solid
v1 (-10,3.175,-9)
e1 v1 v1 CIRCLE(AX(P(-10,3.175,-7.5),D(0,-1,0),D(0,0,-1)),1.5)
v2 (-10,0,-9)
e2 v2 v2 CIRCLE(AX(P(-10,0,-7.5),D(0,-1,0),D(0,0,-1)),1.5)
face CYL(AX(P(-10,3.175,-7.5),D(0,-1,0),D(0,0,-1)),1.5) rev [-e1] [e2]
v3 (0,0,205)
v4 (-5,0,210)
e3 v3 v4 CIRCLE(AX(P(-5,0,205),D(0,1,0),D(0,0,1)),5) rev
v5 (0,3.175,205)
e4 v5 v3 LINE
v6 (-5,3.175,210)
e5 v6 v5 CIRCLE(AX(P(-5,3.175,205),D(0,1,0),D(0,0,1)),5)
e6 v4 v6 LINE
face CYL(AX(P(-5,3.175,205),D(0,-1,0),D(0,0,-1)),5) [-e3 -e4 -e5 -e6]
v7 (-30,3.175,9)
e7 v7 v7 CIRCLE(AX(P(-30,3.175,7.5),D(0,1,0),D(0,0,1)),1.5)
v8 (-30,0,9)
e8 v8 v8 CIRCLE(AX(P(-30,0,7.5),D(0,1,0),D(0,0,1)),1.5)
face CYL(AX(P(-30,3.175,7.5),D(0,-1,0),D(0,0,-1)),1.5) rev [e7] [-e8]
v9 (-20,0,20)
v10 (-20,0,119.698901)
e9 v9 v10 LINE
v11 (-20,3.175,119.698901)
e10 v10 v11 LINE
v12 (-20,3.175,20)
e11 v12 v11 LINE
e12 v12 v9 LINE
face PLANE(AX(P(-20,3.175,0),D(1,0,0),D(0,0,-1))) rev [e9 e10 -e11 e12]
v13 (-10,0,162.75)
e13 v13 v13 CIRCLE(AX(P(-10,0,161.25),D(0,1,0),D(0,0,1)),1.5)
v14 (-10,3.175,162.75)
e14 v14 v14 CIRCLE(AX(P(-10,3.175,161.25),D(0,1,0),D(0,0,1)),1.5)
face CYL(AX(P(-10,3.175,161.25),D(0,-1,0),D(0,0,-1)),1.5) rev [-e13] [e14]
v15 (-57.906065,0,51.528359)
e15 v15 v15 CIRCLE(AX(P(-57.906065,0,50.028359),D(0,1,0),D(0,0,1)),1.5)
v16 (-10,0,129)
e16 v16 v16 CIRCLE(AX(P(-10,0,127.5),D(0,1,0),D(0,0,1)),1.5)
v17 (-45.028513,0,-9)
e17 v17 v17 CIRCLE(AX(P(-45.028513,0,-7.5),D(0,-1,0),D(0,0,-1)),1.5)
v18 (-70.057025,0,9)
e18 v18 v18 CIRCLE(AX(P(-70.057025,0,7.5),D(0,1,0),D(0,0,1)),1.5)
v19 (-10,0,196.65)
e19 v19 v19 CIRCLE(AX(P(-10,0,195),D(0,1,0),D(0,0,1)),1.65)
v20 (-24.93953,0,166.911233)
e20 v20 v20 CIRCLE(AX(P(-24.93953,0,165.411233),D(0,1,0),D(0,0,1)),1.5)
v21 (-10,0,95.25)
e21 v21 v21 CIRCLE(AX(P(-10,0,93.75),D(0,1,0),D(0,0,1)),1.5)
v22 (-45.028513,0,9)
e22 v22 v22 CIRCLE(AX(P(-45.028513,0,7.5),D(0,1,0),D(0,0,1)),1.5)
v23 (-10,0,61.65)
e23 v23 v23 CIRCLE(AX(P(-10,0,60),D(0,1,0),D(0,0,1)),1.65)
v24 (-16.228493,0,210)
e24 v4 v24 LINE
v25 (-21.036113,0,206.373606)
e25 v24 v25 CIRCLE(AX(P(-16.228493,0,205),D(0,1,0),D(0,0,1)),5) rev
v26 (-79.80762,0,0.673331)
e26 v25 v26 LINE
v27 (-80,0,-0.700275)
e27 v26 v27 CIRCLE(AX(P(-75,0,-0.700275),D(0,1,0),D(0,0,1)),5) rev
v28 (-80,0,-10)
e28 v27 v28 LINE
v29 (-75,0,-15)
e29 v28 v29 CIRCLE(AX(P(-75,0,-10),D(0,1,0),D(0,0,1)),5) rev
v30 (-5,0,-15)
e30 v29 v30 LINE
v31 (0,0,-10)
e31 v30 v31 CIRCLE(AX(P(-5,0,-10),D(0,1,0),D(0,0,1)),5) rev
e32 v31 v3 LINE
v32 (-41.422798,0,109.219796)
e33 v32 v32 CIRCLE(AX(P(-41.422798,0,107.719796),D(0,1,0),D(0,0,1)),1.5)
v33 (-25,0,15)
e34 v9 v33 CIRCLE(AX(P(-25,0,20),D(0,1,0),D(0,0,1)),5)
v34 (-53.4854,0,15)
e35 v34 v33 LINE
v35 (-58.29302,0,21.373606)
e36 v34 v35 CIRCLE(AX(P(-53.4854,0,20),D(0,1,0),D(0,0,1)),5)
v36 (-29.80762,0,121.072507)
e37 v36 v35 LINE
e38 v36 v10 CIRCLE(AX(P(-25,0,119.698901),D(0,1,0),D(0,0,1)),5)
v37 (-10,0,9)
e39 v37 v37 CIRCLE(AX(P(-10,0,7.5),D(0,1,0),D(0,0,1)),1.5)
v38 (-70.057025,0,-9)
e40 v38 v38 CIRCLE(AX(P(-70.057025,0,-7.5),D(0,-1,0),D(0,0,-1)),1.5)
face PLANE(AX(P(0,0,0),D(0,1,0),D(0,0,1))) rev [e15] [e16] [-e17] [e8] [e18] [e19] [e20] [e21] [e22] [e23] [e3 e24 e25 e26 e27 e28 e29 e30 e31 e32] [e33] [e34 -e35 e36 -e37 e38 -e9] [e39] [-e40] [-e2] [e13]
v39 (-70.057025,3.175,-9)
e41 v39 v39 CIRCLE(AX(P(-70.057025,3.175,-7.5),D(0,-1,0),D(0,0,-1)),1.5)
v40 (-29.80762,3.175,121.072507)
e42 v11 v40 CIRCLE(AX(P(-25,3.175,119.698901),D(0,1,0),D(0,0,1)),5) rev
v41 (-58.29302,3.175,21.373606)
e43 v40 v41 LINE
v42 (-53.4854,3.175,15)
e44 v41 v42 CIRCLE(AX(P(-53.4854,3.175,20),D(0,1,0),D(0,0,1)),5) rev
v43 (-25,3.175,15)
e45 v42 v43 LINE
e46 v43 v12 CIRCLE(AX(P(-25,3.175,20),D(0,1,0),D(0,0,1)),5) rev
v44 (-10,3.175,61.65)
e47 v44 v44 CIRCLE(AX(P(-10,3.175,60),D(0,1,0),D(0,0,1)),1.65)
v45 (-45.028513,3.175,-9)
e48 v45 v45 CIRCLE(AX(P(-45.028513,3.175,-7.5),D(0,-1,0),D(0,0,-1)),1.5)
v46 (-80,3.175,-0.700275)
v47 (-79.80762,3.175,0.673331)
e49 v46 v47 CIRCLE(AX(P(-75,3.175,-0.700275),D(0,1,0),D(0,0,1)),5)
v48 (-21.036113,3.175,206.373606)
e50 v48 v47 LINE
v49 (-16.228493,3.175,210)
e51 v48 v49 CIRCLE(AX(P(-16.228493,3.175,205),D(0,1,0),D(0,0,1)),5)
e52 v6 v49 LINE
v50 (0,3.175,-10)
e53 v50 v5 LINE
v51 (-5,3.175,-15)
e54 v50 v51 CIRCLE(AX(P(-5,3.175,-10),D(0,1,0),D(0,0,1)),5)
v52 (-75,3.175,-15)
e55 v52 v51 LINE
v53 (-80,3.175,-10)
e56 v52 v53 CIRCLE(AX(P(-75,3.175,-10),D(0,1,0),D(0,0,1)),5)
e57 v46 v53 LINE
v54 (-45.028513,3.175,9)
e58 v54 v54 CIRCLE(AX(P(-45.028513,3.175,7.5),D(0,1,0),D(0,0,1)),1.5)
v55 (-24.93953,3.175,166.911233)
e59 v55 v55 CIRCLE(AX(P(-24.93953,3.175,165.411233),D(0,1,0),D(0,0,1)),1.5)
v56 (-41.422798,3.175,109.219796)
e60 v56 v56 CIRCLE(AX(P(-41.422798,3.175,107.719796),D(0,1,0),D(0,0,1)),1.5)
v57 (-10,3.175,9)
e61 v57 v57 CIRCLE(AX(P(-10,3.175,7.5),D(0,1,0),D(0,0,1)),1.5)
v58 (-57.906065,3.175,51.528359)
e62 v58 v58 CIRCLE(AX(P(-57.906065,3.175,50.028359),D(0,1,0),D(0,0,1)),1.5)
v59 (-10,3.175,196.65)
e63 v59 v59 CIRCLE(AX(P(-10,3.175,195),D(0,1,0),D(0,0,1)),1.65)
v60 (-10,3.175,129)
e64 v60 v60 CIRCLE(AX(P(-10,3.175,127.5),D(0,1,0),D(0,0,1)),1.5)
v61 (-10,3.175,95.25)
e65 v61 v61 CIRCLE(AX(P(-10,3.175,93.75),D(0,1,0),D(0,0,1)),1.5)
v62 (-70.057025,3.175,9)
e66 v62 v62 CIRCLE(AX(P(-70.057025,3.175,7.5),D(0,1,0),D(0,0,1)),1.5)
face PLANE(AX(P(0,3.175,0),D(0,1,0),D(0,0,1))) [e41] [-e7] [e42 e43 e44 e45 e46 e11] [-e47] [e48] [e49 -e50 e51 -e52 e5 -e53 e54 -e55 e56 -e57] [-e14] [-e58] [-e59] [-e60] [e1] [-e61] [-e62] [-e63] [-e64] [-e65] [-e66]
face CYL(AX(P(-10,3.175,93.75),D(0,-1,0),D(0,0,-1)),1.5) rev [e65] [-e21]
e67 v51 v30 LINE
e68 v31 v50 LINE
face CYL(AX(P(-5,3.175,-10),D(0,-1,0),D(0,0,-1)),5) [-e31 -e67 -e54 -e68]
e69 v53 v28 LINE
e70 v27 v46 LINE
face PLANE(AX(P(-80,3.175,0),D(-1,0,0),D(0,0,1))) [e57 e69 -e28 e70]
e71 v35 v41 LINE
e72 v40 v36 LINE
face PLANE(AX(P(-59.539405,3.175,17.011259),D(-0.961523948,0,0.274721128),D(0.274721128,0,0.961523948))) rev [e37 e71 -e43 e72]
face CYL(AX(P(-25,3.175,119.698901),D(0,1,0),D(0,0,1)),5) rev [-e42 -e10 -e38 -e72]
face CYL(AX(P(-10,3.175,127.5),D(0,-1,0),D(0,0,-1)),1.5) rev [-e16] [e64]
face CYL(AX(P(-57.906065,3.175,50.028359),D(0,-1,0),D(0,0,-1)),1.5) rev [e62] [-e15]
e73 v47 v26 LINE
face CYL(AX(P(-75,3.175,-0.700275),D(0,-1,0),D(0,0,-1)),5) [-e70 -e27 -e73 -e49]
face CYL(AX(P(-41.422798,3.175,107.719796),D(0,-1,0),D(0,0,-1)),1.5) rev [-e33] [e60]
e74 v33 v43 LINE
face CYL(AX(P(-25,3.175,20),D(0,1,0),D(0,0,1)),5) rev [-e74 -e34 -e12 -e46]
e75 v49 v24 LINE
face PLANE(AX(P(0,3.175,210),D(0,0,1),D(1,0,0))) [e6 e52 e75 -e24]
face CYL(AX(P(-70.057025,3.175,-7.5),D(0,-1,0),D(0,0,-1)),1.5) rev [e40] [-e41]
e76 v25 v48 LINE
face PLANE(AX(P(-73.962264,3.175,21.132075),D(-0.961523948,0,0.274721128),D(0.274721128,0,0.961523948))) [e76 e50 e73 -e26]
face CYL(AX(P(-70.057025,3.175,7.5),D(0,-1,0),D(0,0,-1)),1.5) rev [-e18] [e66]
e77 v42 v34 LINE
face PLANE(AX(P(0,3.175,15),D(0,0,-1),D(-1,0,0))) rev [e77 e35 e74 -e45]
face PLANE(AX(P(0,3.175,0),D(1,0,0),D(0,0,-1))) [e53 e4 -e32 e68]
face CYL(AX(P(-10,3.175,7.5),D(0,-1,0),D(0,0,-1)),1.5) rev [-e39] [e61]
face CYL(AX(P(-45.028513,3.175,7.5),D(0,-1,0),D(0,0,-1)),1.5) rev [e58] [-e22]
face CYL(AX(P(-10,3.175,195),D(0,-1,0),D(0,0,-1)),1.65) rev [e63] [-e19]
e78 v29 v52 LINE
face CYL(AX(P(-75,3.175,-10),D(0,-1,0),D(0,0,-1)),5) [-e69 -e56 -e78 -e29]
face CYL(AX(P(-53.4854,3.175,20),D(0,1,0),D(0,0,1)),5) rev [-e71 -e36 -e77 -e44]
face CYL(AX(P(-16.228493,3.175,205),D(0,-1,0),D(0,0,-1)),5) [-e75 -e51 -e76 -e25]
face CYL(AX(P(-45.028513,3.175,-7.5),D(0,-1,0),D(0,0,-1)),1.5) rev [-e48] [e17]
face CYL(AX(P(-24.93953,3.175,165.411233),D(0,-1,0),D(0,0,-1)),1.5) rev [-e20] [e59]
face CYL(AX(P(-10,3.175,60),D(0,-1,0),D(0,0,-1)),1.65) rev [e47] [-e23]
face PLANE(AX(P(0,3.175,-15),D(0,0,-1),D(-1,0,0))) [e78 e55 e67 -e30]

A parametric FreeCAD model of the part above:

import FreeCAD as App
import Part
import Sketcher

V = App.Vector


def edges_at(feature, points):
    """Names of the edges that pass closest to the given points."""
    edges = feature.Shape.Edges
    near = lambda p: min(range(len(edges)), key=lambda i: edges[i].distToShape(Part.Vertex(*p))[0])
    return sorted({f"Edge{near(p) + 1}" for p in points})

doc = App.newDocument("Part")
params = doc.addObject("Spreadsheet::Sheet", "Params")
for row, (alias, value) in enumerate([
    ("sketch1_diameter", "3 mm"),
    ("sketch1_diameter2", "3.3 mm"),
    ("sketch1_width", "20 mm"),
    ("sketch1_width2", "80 mm"),
    ("sketch1_height", "210 mm"),
    ("pad1_length", "3.175 mm"),
    ("sketch2_diameter", "3 mm"),
    ("sketch2_width", "80 mm"),
    ("sketch2_height", "15 mm"),
    ("pad2_length", "3.175 mm"),
    ("fillet_radius", "5 mm"),
], start=1):
    params.set(f"A{row}", alias)
    params.set(f"B{row}", "=" + value)
    params.setAlias(f"B{row}", alias)

body = doc.addObject("PartDesign::Body", "Body")

sketch1 = body.newObject("Sketcher::SketchObject", "Sketch")
sketch1.AttachmentSupport = (doc.getObject("XZ_Plane"), [""])
sketch1.MapMode = "FlatFace"
sketch1.addGeometry([
    Part.LineSegment(V(-20, 210, 0), V(0, 210, 0)),
    Part.LineSegment(V(0, 210, 0), V(0, 0, 0)),
    Part.LineSegment(V(0, 0, 0), V(-80, 0, 0)),
    Part.LineSegment(V(-80, 0, 0), V(-20, 210, 0)),
    Part.Circle(V(-41.4, 107.7, 0), V(0, 0, 1), 1.5),
    Part.Circle(V(-24.9, 165.4, 0), V(0, 0, 1), 1.5),
    Part.Circle(V(-10, 195, 0), V(0, 0, 1), 1.6),
    Part.Circle(V(-10, 161.2, 0), V(0, 0, 1), 1.5),
    Part.Circle(V(-10, 127.5, 0), V(0, 0, 1), 1.5),
    Part.LineSegment(V(-60.1, 15, 0), V(-20, 15, 0)),
    Part.LineSegment(V(-20, 15, 0), V(-20, 155.4, 0)),
    Part.LineSegment(V(-20, 155.4, 0), V(-60.1, 15, 0)),
    Part.Circle(V(-57.9, 50, 0), V(0, 0, 1), 1.5),
    Part.Circle(V(-70.1, 7.5, 0), V(0, 0, 1), 1.5),
    Part.Circle(V(-45, 7.5, 0), V(0, 0, 1), 1.5),
    Part.Circle(V(-10, 93.8, 0), V(0, 0, 1), 1.5),
    Part.Circle(V(-10, 60, 0), V(0, 0, 1), 1.6),
    Part.Circle(V(-30, 7.5, 0), V(0, 0, 1), 1.5),
    Part.Circle(V(-10, 7.5, 0), V(0, 0, 1), 1.5),
], False)
sketch1.addConstraint([
    Sketcher.Constraint("Coincident", 0, 2, 1, 1),
    Sketcher.Constraint("Coincident", 1, 2, 2, 1),
    Sketcher.Constraint("Coincident", 2, 2, 3, 1),
    Sketcher.Constraint("Coincident", 3, 2, 0, 1),
    Sketcher.Constraint("Coincident", 9, 2, 10, 1),
    Sketcher.Constraint("Coincident", 10, 2, 11, 1),
    Sketcher.Constraint("Coincident", 11, 2, 9, 1),
    Sketcher.Constraint("Horizontal", 0),
    Sketcher.Constraint("Vertical", 1),
    Sketcher.Constraint("Horizontal", 2),
    Sketcher.Constraint("Horizontal", 9),
    Sketcher.Constraint("Vertical", 10),
    Sketcher.Constraint("Coincident", 1, 2, -1, 1),
    Sketcher.Constraint("Equal", 4, 5),
    Sketcher.Constraint("Equal", 5, 7),
    Sketcher.Constraint("Equal", 7, 8),
    Sketcher.Constraint("Equal", 8, 12),
    Sketcher.Constraint("Equal", 12, 13),
    Sketcher.Constraint("Equal", 13, 14),
    Sketcher.Constraint("Equal", 14, 15),
    Sketcher.Constraint("Equal", 6, 16),
    Sketcher.Constraint("Equal", 15, 17),
    Sketcher.Constraint("Equal", 17, 18),
    Sketcher.Constraint("Parallel", 3, 11),
    Sketcher.Constraint("Horizontal", 13, 3, 14, 3),
    Sketcher.Constraint("Horizontal", 14, 3, 17, 3),
    Sketcher.Constraint("Horizontal", 17, 3, 18, 3),
    Sketcher.Constraint("Vertical", 6, 3, 7, 3),
    Sketcher.Constraint("Vertical", 7, 3, 8, 3),
    Sketcher.Constraint("Vertical", 8, 3, 15, 3),
    Sketcher.Constraint("Vertical", 15, 3, 16, 3),
    Sketcher.Constraint("Vertical", 16, 3, 18, 3),
    Sketcher.Constraint("Vertical", 3, 2, 9, 2),
    Sketcher.Constraint("Diameter", 4, 3.0),
    Sketcher.Constraint("Diameter", 6, 3.3),
    Sketcher.Constraint("DistanceX", 0, 1, 0, 2, 20.0),
    Sketcher.Constraint("DistanceX", 2, 2, 2, 1, 80.0),
    Sketcher.Constraint("DistanceY", 1, 2, 1, 1, 210.0),
    Sketcher.Constraint("DistanceX", 6, 3, -1, 1, 10.0),
    Sketcher.Constraint("DistanceY", -1, 1, 6, 3, 195.0),
    Sketcher.Constraint("DistanceY", -1, 1, 16, 3, 60.0),
    Sketcher.Constraint("DistanceX", 17, 3, -1, 1, 30.0),
    Sketcher.Constraint("DistanceY", -1, 1, 9, 2, 15.0),
    Sketcher.Constraint("DistanceY", 13, 3, 8, 3, 120.0),
    Sketcher.Constraint("DistanceY", -1, 1, 8, 3, 127.5),
    Sketcher.Constraint("DistanceY", 15, 3, 7, 3, 67.5),
    Sketcher.Constraint("DistanceY", -1, 1, 7, 3, 161.25),
    Sketcher.Constraint("DistanceX", 9, 1, 9, 2, 40.11405),
    Sketcher.Constraint("DistanceX", 5, 3, -1, 1, 24.93953),
    Sketcher.Constraint("DistanceY", -1, 1, 12, 3, 50.028359),
    Sketcher.Constraint("DistanceX", 13, 3, 12, 3, 12.15096),
    Sketcher.Constraint("DistanceY", 4, 3, 10, 2, 47.67938),
    Sketcher.Constraint("DistanceX", 4, 3, -1, 1, 41.422798),
    Sketcher.Constraint("DistanceY", -1, 1, 5, 3, 165.411233),
    Sketcher.Constraint("DistanceX", 12, 3, -1, 1, 57.906065),
    Sketcher.Constraint("DistanceX", 14, 3, -1, 1, 45.028513),
])
sketch1.setExpression("Constraints[33]", "Params.sketch1_diameter")
sketch1.setExpression("Constraints[34]", "Params.sketch1_diameter2")
sketch1.setExpression("Constraints[35]", "Params.sketch1_width")
sketch1.setExpression("Constraints[36]", "Params.sketch1_width2")
sketch1.setExpression("Constraints[37]", "Params.sketch1_height")
pad1 = body.newObject("PartDesign::Pad", "Pad")
pad1.Profile = sketch1
pad1.setExpression("Length", "Params.pad1_length")
pad1.Reversed = True

sketch2 = body.newObject("Sketcher::SketchObject", "Sketch001")
sketch2.AttachmentSupport = (doc.getObject("XZ_Plane"), [""])
sketch2.MapMode = "FlatFace"
sketch2.addGeometry([
    Part.LineSegment(V(-80, 0, 0), V(-80, -15, 0)),
    Part.LineSegment(V(-80, -15, 0), V(0, -15, 0)),
    Part.LineSegment(V(0, -15, 0), V(0, 0, 0)),
    Part.LineSegment(V(0, 0, 0), V(-80, 0, 0)),
    Part.Circle(V(-70.1, -7.5, 0), V(0, 0, 1), 1.5),
    Part.Circle(V(-45, -7.5, 0), V(0, 0, 1), 1.5),
    Part.Circle(V(-10, -7.5, 0), V(0, 0, 1), 1.5),
], False)
sketch2.addConstraint([
    Sketcher.Constraint("Coincident", 0, 2, 1, 1),
    Sketcher.Constraint("Coincident", 1, 2, 2, 1),
    Sketcher.Constraint("Coincident", 2, 2, 3, 1),
    Sketcher.Constraint("Coincident", 3, 2, 0, 1),
    Sketcher.Constraint("Vertical", 0),
    Sketcher.Constraint("Horizontal", 1),
    Sketcher.Constraint("Vertical", 2),
    Sketcher.Constraint("Horizontal", 3),
    Sketcher.Constraint("Coincident", 2, 2, -1, 1),
    Sketcher.Constraint("Equal", 4, 5),
    Sketcher.Constraint("Equal", 5, 6),
    Sketcher.Constraint("Horizontal", 4, 3, 5, 3),
    Sketcher.Constraint("Horizontal", 5, 3, 6, 3),
    Sketcher.Constraint("Diameter", 4, 3.0),
    Sketcher.Constraint("DistanceX", 1, 1, 1, 2, 80.0),
    Sketcher.Constraint("DistanceY", 0, 2, 0, 1, 15.0),
    Sketcher.Constraint("DistanceX", 6, 3, -1, 1, 10.0),
    Sketcher.Constraint("DistanceY", 4, 3, -1, 1, 7.5),
    Sketcher.Constraint("DistanceX", 4, 3, -1, 1, 70.057025),
    Sketcher.Constraint("DistanceX", 5, 3, -1, 1, 45.028513),
])
sketch2.setExpression("Constraints[13]", "Params.sketch2_diameter")
sketch2.setExpression("Constraints[14]", "Params.sketch2_width")
sketch2.setExpression("Constraints[15]", "Params.sketch2_height")
pad2 = body.newObject("PartDesign::Pad", "Pad001")
pad2.Profile = sketch2
pad2.setExpression("Length", "Params.pad2_length")
pad2.Reversed = True
doc.recompute()

fillet = body.newObject("PartDesign::Fillet", "Fillet")
fillet.Base = (pad2, edges_at(pad2, [
    (-80, 1.587, 0),
    (0, 1.587, 210),
    (-20, 1.587, 210),
    (-20, 1.587, 15),
    (-60.114, 1.587, 15),
    (-20, 1.587, 155.399),
    (0, 1.587, -15),
    (-80, 1.587, -15),
]))
fillet.setExpression("Radius", "Params.fillet_radius")

doc.recompute()
